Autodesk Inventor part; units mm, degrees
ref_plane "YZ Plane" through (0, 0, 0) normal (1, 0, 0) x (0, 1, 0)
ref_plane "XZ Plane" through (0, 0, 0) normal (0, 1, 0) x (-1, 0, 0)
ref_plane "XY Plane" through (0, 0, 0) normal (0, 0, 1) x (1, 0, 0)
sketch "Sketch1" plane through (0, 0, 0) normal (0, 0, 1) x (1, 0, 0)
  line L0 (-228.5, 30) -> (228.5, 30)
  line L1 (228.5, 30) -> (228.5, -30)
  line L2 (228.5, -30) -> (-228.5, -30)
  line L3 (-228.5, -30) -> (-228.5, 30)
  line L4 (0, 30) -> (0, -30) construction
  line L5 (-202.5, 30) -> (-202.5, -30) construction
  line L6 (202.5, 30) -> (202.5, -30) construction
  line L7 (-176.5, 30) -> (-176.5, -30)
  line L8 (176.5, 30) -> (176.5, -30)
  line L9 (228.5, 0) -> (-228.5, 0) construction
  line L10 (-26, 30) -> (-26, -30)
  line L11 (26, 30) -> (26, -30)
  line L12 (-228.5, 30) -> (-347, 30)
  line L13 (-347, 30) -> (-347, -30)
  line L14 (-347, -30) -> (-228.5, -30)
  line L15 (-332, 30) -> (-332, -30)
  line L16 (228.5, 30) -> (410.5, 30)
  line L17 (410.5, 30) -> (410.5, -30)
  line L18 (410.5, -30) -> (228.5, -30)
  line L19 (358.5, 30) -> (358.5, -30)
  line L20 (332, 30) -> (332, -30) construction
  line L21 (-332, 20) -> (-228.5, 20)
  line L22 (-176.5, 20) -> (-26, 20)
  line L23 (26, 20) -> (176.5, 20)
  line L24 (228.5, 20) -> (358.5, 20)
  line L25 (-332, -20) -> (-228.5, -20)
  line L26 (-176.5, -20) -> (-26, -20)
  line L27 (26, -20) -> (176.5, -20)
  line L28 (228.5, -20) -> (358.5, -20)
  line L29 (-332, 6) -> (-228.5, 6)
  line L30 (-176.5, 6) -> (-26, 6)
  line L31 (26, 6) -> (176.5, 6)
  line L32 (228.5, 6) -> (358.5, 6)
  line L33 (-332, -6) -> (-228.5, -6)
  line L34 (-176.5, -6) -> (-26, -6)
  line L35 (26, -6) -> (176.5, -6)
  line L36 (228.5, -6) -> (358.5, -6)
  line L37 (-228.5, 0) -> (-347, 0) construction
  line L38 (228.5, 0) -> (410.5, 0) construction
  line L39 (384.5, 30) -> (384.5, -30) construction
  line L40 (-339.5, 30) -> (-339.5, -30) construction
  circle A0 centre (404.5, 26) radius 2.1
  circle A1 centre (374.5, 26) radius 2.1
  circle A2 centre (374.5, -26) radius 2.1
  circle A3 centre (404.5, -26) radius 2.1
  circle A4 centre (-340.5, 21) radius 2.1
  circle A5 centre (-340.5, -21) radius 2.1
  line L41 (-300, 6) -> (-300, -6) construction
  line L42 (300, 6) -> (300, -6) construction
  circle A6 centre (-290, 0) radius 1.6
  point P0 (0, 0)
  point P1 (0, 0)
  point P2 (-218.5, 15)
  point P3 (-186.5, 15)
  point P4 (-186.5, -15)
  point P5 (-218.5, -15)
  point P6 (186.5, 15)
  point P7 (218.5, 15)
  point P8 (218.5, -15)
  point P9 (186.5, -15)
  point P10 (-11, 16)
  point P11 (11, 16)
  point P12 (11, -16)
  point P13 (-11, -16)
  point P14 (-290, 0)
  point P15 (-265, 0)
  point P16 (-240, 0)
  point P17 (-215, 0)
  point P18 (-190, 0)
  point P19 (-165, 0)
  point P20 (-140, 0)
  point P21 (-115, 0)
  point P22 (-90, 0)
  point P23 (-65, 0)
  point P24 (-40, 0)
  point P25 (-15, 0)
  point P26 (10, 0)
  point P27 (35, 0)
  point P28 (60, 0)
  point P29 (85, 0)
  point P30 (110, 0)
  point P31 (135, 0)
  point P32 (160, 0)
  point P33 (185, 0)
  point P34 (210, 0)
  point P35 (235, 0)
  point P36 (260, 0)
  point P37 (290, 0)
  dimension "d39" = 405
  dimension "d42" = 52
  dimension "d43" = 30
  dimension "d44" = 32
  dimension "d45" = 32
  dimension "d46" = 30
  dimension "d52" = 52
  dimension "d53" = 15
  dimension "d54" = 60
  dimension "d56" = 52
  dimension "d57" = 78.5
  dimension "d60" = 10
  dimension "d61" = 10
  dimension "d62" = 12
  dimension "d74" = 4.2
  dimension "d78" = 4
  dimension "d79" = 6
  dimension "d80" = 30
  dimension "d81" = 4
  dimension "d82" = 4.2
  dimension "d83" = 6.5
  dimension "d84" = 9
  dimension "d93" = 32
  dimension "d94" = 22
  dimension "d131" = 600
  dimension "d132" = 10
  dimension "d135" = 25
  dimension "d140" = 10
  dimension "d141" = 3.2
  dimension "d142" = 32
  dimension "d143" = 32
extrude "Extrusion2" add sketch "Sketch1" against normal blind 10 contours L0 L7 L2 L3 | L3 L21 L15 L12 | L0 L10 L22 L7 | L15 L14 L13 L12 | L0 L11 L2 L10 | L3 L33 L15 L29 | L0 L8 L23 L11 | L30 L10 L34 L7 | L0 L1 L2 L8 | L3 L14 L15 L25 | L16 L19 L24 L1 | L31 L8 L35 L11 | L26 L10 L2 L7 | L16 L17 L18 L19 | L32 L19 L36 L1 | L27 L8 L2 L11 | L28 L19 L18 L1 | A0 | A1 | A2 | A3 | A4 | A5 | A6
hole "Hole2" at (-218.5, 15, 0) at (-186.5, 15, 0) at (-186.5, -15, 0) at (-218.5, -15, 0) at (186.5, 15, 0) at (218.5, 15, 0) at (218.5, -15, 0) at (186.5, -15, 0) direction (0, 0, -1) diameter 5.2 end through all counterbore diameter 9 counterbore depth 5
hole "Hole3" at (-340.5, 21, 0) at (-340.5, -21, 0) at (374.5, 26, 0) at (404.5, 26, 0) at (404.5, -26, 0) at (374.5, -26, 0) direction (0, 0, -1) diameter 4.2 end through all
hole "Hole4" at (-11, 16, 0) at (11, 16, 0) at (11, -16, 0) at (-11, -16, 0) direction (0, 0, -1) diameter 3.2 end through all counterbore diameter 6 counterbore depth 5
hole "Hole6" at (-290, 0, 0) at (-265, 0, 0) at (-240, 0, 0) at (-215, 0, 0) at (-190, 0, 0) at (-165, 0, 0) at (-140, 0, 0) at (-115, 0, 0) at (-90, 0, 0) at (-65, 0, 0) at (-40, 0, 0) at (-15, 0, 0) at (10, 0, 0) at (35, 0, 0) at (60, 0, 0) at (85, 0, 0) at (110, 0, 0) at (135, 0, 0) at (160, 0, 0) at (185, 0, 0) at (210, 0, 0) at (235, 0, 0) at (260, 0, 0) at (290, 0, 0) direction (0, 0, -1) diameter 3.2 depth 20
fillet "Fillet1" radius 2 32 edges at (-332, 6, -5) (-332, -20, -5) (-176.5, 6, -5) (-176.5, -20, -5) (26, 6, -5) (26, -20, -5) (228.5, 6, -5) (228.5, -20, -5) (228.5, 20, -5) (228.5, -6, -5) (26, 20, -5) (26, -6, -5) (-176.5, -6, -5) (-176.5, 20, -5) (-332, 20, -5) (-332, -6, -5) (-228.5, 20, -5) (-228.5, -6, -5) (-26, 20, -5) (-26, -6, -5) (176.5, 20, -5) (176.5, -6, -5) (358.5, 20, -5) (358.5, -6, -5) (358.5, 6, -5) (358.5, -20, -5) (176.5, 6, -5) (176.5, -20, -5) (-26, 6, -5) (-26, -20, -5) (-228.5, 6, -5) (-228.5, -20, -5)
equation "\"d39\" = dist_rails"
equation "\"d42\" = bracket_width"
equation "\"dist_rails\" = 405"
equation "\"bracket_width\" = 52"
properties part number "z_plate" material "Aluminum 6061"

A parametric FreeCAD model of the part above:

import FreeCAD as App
import Part
import Sketcher

V = App.Vector


def edges_at(feature, points):
    """Names of the edges that pass closest to the given points."""
    edges = feature.Shape.Edges
    near = lambda p: min(range(len(edges)), key=lambda i: edges[i].distToShape(Part.Vertex(*p))[0])
    return sorted({f"Edge{near(p) + 1}" for p in points})

doc = App.newDocument("Part")
body = doc.addObject("PartDesign::Body", "Body")

# Sketch on XY plane
sketch1 = body.newObject("Sketcher::SketchObject", "Sketch")
sketch1.AttachmentSupport = (doc.getObject("XY_Plane"), [""])
sketch1.MapMode = "FlatFace"
sketch1.addGeometry([
    Part.LineSegment(V(-347, 30, 0), V(-347, -30, 0)),  # 0
    Part.LineSegment(V(-347, -30, 0), V(410.5, -30, 0)),  # 1
    Part.LineSegment(V(410.5, -30, 0), V(410.5, 30, 0)),  # 2
    Part.LineSegment(V(410.5, 30, 0), V(-347, 30, 0)),  # 3
    Part.LineSegment(V(-176.5, 6, 0), V(-176.5, 20, 0)),  # 4
    Part.LineSegment(V(-176.5, 20, 0), V(-26, 20, 0)),  # 5
    Part.LineSegment(V(-26, 20, 0), V(-26, 6, 0)),  # 6
    Part.LineSegment(V(-26, 6, 0), V(-176.5, 6, 0)),  # 7
    Part.LineSegment(V(-176.5, -20, 0), V(-176.5, -6, 0)),  # 8
    Part.LineSegment(V(-176.5, -6, 0), V(-26, -6, 0)),  # 9
    Part.LineSegment(V(-26, -6, 0), V(-26, -20, 0)),  # 10
    Part.LineSegment(V(-26, -20, 0), V(-176.5, -20, 0)),  # 11
    Part.LineSegment(V(-228.5, -6, 0), V(-228.5, -20, 0)),  # 12
    Part.LineSegment(V(-228.5, -20, 0), V(-332, -20, 0)),  # 13
    Part.LineSegment(V(-332, -20, 0), V(-332, -6, 0)),  # 14
    Part.LineSegment(V(-332, -6, 0), V(-228.5, -6, 0)),  # 15
    Part.LineSegment(V(-228.5, 20, 0), V(-228.5, 6, 0)),  # 16
    Part.LineSegment(V(-228.5, 6, 0), V(-332, 6, 0)),  # 17
    Part.LineSegment(V(-332, 6, 0), V(-332, 20, 0)),  # 18
    Part.LineSegment(V(-332, 20, 0), V(-228.5, 20, 0)),  # 19
    Part.LineSegment(V(26, 6, 0), V(26, 20, 0)),  # 20
    Part.LineSegment(V(26, 20, 0), V(176.5, 20, 0)),  # 21
    Part.LineSegment(V(176.5, 20, 0), V(176.5, 6, 0)),  # 22
    Part.LineSegment(V(176.5, 6, 0), V(26, 6, 0)),  # 23
    Part.LineSegment(V(26, -20, 0), V(26, -6, 0)),  # 24
    Part.LineSegment(V(26, -6, 0), V(176.5, -6, 0)),  # 25
    Part.LineSegment(V(176.5, -6, 0), V(176.5, -20, 0)),  # 26
    Part.LineSegment(V(176.5, -20, 0), V(26, -20, 0)),  # 27
    Part.LineSegment(V(228.5, 6, 0), V(228.5, 20, 0)),  # 28
    Part.LineSegment(V(228.5, 20, 0), V(358.5, 20, 0)),  # 29
    Part.LineSegment(V(358.5, 20, 0), V(358.5, 6, 0)),  # 30
    Part.LineSegment(V(358.5, 6, 0), V(228.5, 6, 0)),  # 31
    Part.LineSegment(V(228.5, -20, 0), V(228.5, -6, 0)),  # 32
    Part.LineSegment(V(228.5, -6, 0), V(358.5, -6, 0)),  # 33
    Part.LineSegment(V(358.5, -6, 0), V(358.5, -20, 0)),  # 34
    Part.LineSegment(V(358.5, -20, 0), V(228.5, -20, 0)),  # 35
], False)
sketch1.addConstraint([
    Sketcher.Constraint("Coincident", 0, 2, 1, 1),
    Sketcher.Constraint("Coincident", 1, 2, 2, 1),
    Sketcher.Constraint("Coincident", 2, 2, 3, 1),
    Sketcher.Constraint("Coincident", 3, 2, 0, 1),
    Sketcher.Constraint("Coincident", 4, 2, 5, 1),
    Sketcher.Constraint("Coincident", 5, 2, 6, 1),
    Sketcher.Constraint("Coincident", 6, 2, 7, 1),
    Sketcher.Constraint("Coincident", 7, 2, 4, 1),
    Sketcher.Constraint("Coincident", 8, 2, 9, 1),
    Sketcher.Constraint("Coincident", 9, 2, 10, 1),
    Sketcher.Constraint("Coincident", 10, 2, 11, 1),
    Sketcher.Constraint("Coincident", 11, 2, 8, 1),
    Sketcher.Constraint("Coincident", 12, 2, 13, 1),
    Sketcher.Constraint("Coincident", 13, 2, 14, 1),
    Sketcher.Constraint("Coincident", 14, 2, 15, 1),
    Sketcher.Constraint("Coincident", 15, 2, 12, 1),
    Sketcher.Constraint("Coincident", 16, 2, 17, 1),
    Sketcher.Constraint("Coincident", 17, 2, 18, 1),
    Sketcher.Constraint("Coincident", 18, 2, 19, 1),
    Sketcher.Constraint("Coincident", 19, 2, 16, 1),
    Sketcher.Constraint("Coincident", 20, 2, 21, 1),
    Sketcher.Constraint("Coincident", 21, 2, 22, 1),
    Sketcher.Constraint("Coincident", 22, 2, 23, 1),
    Sketcher.Constraint("Coincident", 23, 2, 20, 1),
    Sketcher.Constraint("Coincident", 24, 2, 25, 1),
    Sketcher.Constraint("Coincident", 25, 2, 26, 1),
    Sketcher.Constraint("Coincident", 26, 2, 27, 1),
    Sketcher.Constraint("Coincident", 27, 2, 24, 1),
    Sketcher.Constraint("Coincident", 28, 2, 29, 1),
    Sketcher.Constraint("Coincident", 29, 2, 30, 1),
    Sketcher.Constraint("Coincident", 30, 2, 31, 1),
    Sketcher.Constraint("Coincident", 31, 2, 28, 1),
    Sketcher.Constraint("Coincident", 32, 2, 33, 1),
    Sketcher.Constraint("Coincident", 33, 2, 34, 1),
    Sketcher.Constraint("Coincident", 34, 2, 35, 1),
    Sketcher.Constraint("Coincident", 35, 2, 32, 1),
    Sketcher.Constraint("Vertical", 0),
    Sketcher.Constraint("Horizontal", 1),
    Sketcher.Constraint("Vertical", 2),
    Sketcher.Constraint("Horizontal", 3),
    Sketcher.Constraint("Vertical", 4),
    Sketcher.Constraint("Horizontal", 5),
    Sketcher.Constraint("Vertical", 6),
    Sketcher.Constraint("Horizontal", 7),
    Sketcher.Constraint("Vertical", 8),
    Sketcher.Constraint("Horizontal", 9),
    Sketcher.Constraint("Vertical", 10),
    Sketcher.Constraint("Horizontal", 11),
    Sketcher.Constraint("Vertical", 12),
    Sketcher.Constraint("Horizontal", 13),
    Sketcher.Constraint("Vertical", 14),
    Sketcher.Constraint("Horizontal", 15),
    Sketcher.Constraint("Vertical", 16),
    Sketcher.Constraint("Horizontal", 17),
    Sketcher.Constraint("Vertical", 18),
    Sketcher.Constraint("Horizontal", 19),
    Sketcher.Constraint("Vertical", 20),
    Sketcher.Constraint("Horizontal", 21),
    Sketcher.Constraint("Vertical", 22),
    Sketcher.Constraint("Horizontal", 23),
    Sketcher.Constraint("Vertical", 24),
    Sketcher.Constraint("Horizontal", 25),
    Sketcher.Constraint("Vertical", 26),
    Sketcher.Constraint("Horizontal", 27),
    Sketcher.Constraint("Vertical", 28),
    Sketcher.Constraint("Horizontal", 29),
    Sketcher.Constraint("Vertical", 30),
    Sketcher.Constraint("Horizontal", 31),
    Sketcher.Constraint("Vertical", 32),
    Sketcher.Constraint("Horizontal", 33),
    Sketcher.Constraint("Vertical", 34),
    Sketcher.Constraint("Horizontal", 35),
    Sketcher.Constraint("Symmetric", 10, 2, 20, 2, -1, 1),
    Sketcher.Constraint("Symmetric", 8, 2, 22, 2, -1, 1),
    Sketcher.Constraint("Symmetric", 6, 2, 24, 2, -1, 1),
    Sketcher.Constraint("Symmetric", 4, 2, 26, 2, -1, 1),
    Sketcher.Constraint("Symmetric", 12, 2, 28, 2, -1, 1),
    Sketcher.Constraint("Symmetric", 16, 2, 32, 2, -1, 1),
    Sketcher.Constraint("Symmetric", 5, 2, 20, 2, -2),
    Sketcher.Constraint("Symmetric", 7, 2, 22, 2, -2),
    Sketcher.Constraint("Symmetric", 19, 2, 28, 2, -2),
    Sketcher.Constraint("Symmetric", 14, 2, 17, 2, -1),
    Sketcher.Constraint("Symmetric", 30, 2, 33, 2, -1),
    Sketcher.Constraint("Horizontal", 11, 2, 12, 2),
    Sketcher.Constraint("Horizontal", 9, 2, 14, 2),
    Sketcher.Constraint("Horizontal", 27, 2, 34, 2),
    Sketcher.Constraint("DistanceY", 0, 2, 0, 1, 60.0),
    Sketcher.Constraint("DistanceY", 0, 2, -1, 1, 30.0),
    Sketcher.Constraint("DistanceY", -1, 1, 6, 2, 6.0),
    Sketcher.Constraint("DistanceY", 4, 2, 3, 2, 10.0),
    Sketcher.Constraint("DistanceX", 12, 2, 11, 2, 52.0),
    Sketcher.Constraint("DistanceX", 0, 2, 13, 2, 15.0),
    Sketcher.Constraint("DistanceX", 5, 2, 20, 2, 52.0),
    Sketcher.Constraint("DistanceX", 29, 2, 2, 2, 52.0),
    Sketcher.Constraint("DistanceX", 29, 1, 29, 2, 130.0),
    Sketcher.Constraint("DistanceX", 1, 1, 1, 2, 757.5),
    Sketcher.Constraint("DistanceX", 5, 1, 5, 2, 150.5),
])
pad1 = body.newObject("PartDesign::Pad", "Pad")
pad1.Profile = sketch1
pad1.Length = 10
pad1.Reversed = True

# Sketch on XY plane
sketch2 = body.newObject("Sketcher::SketchObject", "Sketch001")
sketch2.AttachmentSupport = (doc.getObject("XY_Plane"), [""])
sketch2.MapMode = "FlatFace"
sketch2.addGeometry([
    Part.Circle(V(-218.5, 15, 0), V(0, 0, 1), 2.6),  # 0
    Part.Circle(V(-186.5, 15, 0), V(0, 0, 1), 2.6),  # 1
    Part.Circle(V(-186.5, -15, 0), V(0, 0, 1), 2.6),  # 2
    Part.Circle(V(-218.5, -15, 0), V(0, 0, 1), 2.6),  # 3
    Part.Circle(V(186.5, 15, 0), V(0, 0, 1), 2.6),  # 4
    Part.Circle(V(218.5, 15, 0), V(0, 0, 1), 2.6),  # 5
    Part.Circle(V(218.5, -15, 0), V(0, 0, 1), 2.6),  # 6
    Part.Circle(V(186.5, -15, 0), V(0, 0, 1), 2.6),  # 7
], False)
sketch2.addConstraint([
    Sketcher.Constraint("Equal", 0, 1),
    Sketcher.Constraint("Equal", 1, 2),
    Sketcher.Constraint("Equal", 2, 3),
    Sketcher.Constraint("Equal", 3, 4),
    Sketcher.Constraint("Equal", 4, 5),
    Sketcher.Constraint("Equal", 5, 6),
    Sketcher.Constraint("Equal", 6, 7),
    Sketcher.Constraint("Symmetric", 2, 3, 4, 3, -1, 1),
    Sketcher.Constraint("Symmetric", 3, 3, 5, 3, -1, 1),
    Sketcher.Constraint("Symmetric", 0, 3, 6, 3, -1, 1),
    Sketcher.Constraint("Symmetric", 1, 3, 7, 3, -1, 1),
    Sketcher.Constraint("Symmetric", 1, 3, 4, 3, -2),
    Sketcher.Constraint("Symmetric", 0, 3, 5, 3, -2),
    Sketcher.Constraint("Horizontal", 0, 3, 1, 3),
    Sketcher.Constraint("Diameter", 0, 5.2),
    Sketcher.Constraint("DistanceY", -1, 1, 0, 3, 15.0),
    Sketcher.Constraint("DistanceX", 0, 3, 1, 3, 32.0),
    Sketcher.Constraint("DistanceX", 1, 3, 4, 3, 373.0),
])
doc.recompute()
hole = body.newObject("PartDesign::Hole", "Hole")
hole.Profile = sketch2
hole.ThreadType = "None"
hole.Diameter = 5.2
hole.DepthType = "ThroughAll"
hole.HoleCutType = "Counterbore"
hole.HoleCutDiameter = 9
hole.HoleCutDepth = 5

# Sketch on XY plane
sketch3 = body.newObject("Sketcher::SketchObject", "Sketch002")
sketch3.AttachmentSupport = (doc.getObject("XY_Plane"), [""])
sketch3.MapMode = "FlatFace"
sketch3.addGeometry([
    Part.Circle(V(-340.5, 21, 0), V(0, 0, 1), 2.1),  # 0
    Part.Circle(V(-340.5, -21, 0), V(0, 0, 1), 2.1),  # 1
    Part.Circle(V(374.5, 26, 0), V(0, 0, 1), 2.1),  # 2
    Part.Circle(V(404.5, 26, 0), V(0, 0, 1), 2.1),  # 3
    Part.Circle(V(404.5, -26, 0), V(0, 0, 1), 2.1),  # 4
    Part.Circle(V(374.5, -26, 0), V(0, 0, 1), 2.1),  # 5
], False)
sketch3.addConstraint([
    Sketcher.Constraint("Equal", 0, 1),
    Sketcher.Constraint("Equal", 1, 2),
    Sketcher.Constraint("Equal", 2, 3),
    Sketcher.Constraint("Equal", 3, 4),
    Sketcher.Constraint("Equal", 4, 5),
    Sketcher.Constraint("Symmetric", 0, 3, 1, 3, -1),
    Sketcher.Constraint("Symmetric", 3, 3, 4, 3, -1),
    Sketcher.Constraint("Symmetric", 2, 3, 5, 3, -1),
    Sketcher.Constraint("Horizontal", 2, 3, 3, 3),
    Sketcher.Constraint("Diameter", 0, 4.2),
    Sketcher.Constraint("DistanceY", -1, 1, 0, 3, 21.0),
    Sketcher.Constraint("DistanceY", -1, 1, 2, 3, 26.0),
    Sketcher.Constraint("DistanceX", 0, 3, 2, 3, 715.0),
    Sketcher.Constraint("DistanceX", 2, 3, 3, 3, 30.0),
    Sketcher.Constraint("DistanceX", 0, 3, -1, 1, 340.5),
])
doc.recompute()
hole2 = body.newObject("PartDesign::Hole", "Hole001")
hole2.Profile = sketch3
hole2.ThreadType = "None"
hole2.Diameter = 4.2
hole2.DepthType = "ThroughAll"

# Sketch on XY plane
sketch4 = body.newObject("Sketcher::SketchObject", "Sketch003")
sketch4.AttachmentSupport = (doc.getObject("XY_Plane"), [""])
sketch4.MapMode = "FlatFace"
sketch4.addGeometry([
    Part.Circle(V(-11, 16, 0), V(0, 0, 1), 1.6),
    Part.Circle(V(11, 16, 0), V(0, 0, 1), 1.6),
    Part.Circle(V(11, -16, 0), V(0, 0, 1), 1.6),
    Part.Circle(V(-11, -16, 0), V(0, 0, 1), 1.6),
], False)
sketch4.addConstraint([
    Sketcher.Constraint("Equal", 0, 1),
    Sketcher.Constraint("Equal", 1, 2),
    Sketcher.Constraint("Equal", 2, 3),
    Sketcher.Constraint("Symmetric", 0, 3, 2, 3, -1, 1),
    Sketcher.Constraint("Symmetric", 1, 3, 3, 3, -1, 1),
    Sketcher.Constraint("Symmetric", 0, 3, 1, 3, -2),
    Sketcher.Constraint("Diameter", 0, 3.2),
    Sketcher.Constraint("DistanceX", 0, 3, -1, 1, 11.0),
    Sketcher.Constraint("DistanceY", -1, 1, 0, 3, 16.0),
])
doc.recompute()
hole3 = body.newObject("PartDesign::Hole", "Hole002")
hole3.Profile = sketch4
hole3.ThreadType = "None"
hole3.Diameter = 3.2
hole3.DepthType = "ThroughAll"
hole3.HoleCutType = "Counterbore"
hole3.HoleCutDiameter = 6
hole3.HoleCutDepth = 5

# Sketch on XY plane
sketch5 = body.newObject("Sketcher::SketchObject", "Sketch004")
sketch5.AttachmentSupport = (doc.getObject("XY_Plane"), [""])
sketch5.MapMode = "FlatFace"
sketch5.addGeometry([
    Part.Circle(V(-290, 0, 0), V(0, 0, 1), 1.6),  # 0
    Part.Circle(V(-265, 0, 0), V(0, 0, 1), 1.6),  # 1
    Part.Circle(V(-240, 0, 0), V(0, 0, 1), 1.6),  # 2
    Part.Circle(V(-215, 0, 0), V(0, 0, 1), 1.6),  # 3
    Part.Circle(V(-190, 0, 0), V(0, 0, 1), 1.6),  # 4
    Part.Circle(V(-165, 0, 0), V(0, 0, 1), 1.6),  # 5
    Part.Circle(V(-140, 0, 0), V(0, 0, 1), 1.6),  # 6
    Part.Circle(V(-115, 0, 0), V(0, 0, 1), 1.6),  # 7
    Part.Circle(V(-90, 0, 0), V(0, 0, 1), 1.6),  # 8
    Part.Circle(V(-65, 0, 0), V(0, 0, 1), 1.6),  # 9
    Part.Circle(V(-40, 0, 0), V(0, 0, 1), 1.6),  # 10
    Part.Circle(V(-15, 0, 0), V(0, 0, 1), 1.6),  # 11
    Part.Circle(V(10, 0, 0), V(0, 0, 1), 1.6),  # 12
    Part.Circle(V(35, 0, 0), V(0, 0, 1), 1.6),  # 13
    Part.Circle(V(60, 0, 0), V(0, 0, 1), 1.6),  # 14
    Part.Circle(V(85, 0, 0), V(0, 0, 1), 1.6),  # 15
    Part.Circle(V(110, 0, 0), V(0, 0, 1), 1.6),  # 16
    Part.Circle(V(135, 0, 0), V(0, 0, 1), 1.6),  # 17
    Part.Circle(V(160, 0, 0), V(0, 0, 1), 1.6),  # 18
    Part.Circle(V(185, 0, 0), V(0, 0, 1), 1.6),  # 19
    Part.Circle(V(210, 0, 0), V(0, 0, 1), 1.6),  # 20
    Part.Circle(V(235, 0, 0), V(0, 0, 1), 1.6),  # 21
    Part.Circle(V(260, 0, 0), V(0, 0, 1), 1.6),  # 22
    Part.Circle(V(290, 0, 0), V(0, 0, 1), 1.6),  # 23
], False)
sketch5.addConstraint([
    Sketcher.Constraint("Equal", 0, 1),
    Sketcher.Constraint("Equal", 1, 2),
    Sketcher.Constraint("Equal", 2, 3),
    Sketcher.Constraint("Equal", 3, 4),
    Sketcher.Constraint("Equal", 4, 5),
    Sketcher.Constraint("Equal", 5, 6),
    Sketcher.Constraint("Equal", 6, 7),
    Sketcher.Constraint("Equal", 7, 8),
    Sketcher.Constraint("Equal", 8, 9),
    Sketcher.Constraint("Equal", 9, 10),
    Sketcher.Constraint("Equal", 10, 11),
    Sketcher.Constraint("Equal", 11, 12),
    Sketcher.Constraint("Equal", 12, 13),
    Sketcher.Constraint("Equal", 13, 14),
    Sketcher.Constraint("Equal", 14, 15),
    Sketcher.Constraint("Equal", 15, 16),
    Sketcher.Constraint("Equal", 16, 17),
    Sketcher.Constraint("Equal", 17, 18),
    Sketcher.Constraint("Equal", 18, 19),
    Sketcher.Constraint("Equal", 19, 20),
    Sketcher.Constraint("Equal", 20, 21),
    Sketcher.Constraint("Equal", 21, 22),
    Sketcher.Constraint("Equal", 22, 23),
    Sketcher.Constraint("Symmetric", 0, 3, 23, 3, -1, 1),
    Sketcher.Constraint("PointOnObject", 0, 3, -1),
    Sketcher.Constraint("PointOnObject", 1, 3, -1),
    Sketcher.Constraint("PointOnObject", 2, 3, -1),
    Sketcher.Constraint("PointOnObject", 3, 3, -1),
    Sketcher.Constraint("PointOnObject", 4, 3, -1),
    Sketcher.Constraint("PointOnObject", 5, 3, -1),
    Sketcher.Constraint("PointOnObject", 6, 3, -1),
    Sketcher.Constraint("PointOnObject", 7, 3, -1),
    Sketcher.Constraint("PointOnObject", 8, 3, -1),
    Sketcher.Constraint("PointOnObject", 9, 3, -1),
    Sketcher.Constraint("PointOnObject", 10, 3, -1),
    Sketcher.Constraint("PointOnObject", 11, 3, -1),
    Sketcher.Constraint("PointOnObject", 12, 3, -1),
    Sketcher.Constraint("PointOnObject", 13, 3, -1),
    Sketcher.Constraint("PointOnObject", 14, 3, -1),
    Sketcher.Constraint("PointOnObject", 15, 3, -1),
    Sketcher.Constraint("PointOnObject", 16, 3, -1),
    Sketcher.Constraint("PointOnObject", 17, 3, -1),
    Sketcher.Constraint("PointOnObject", 18, 3, -1),
    Sketcher.Constraint("PointOnObject", 19, 3, -1),
    Sketcher.Constraint("PointOnObject", 20, 3, -1),
    Sketcher.Constraint("PointOnObject", 21, 3, -1),
    Sketcher.Constraint("PointOnObject", 22, 3, -1),
    Sketcher.Constraint("Diameter", 0, 3.2),
    Sketcher.Constraint("DistanceX", 0, 3, -1, 1, 290.0),
    Sketcher.Constraint("DistanceX", 1, 3, -1, 1, 265.0),
    Sketcher.Constraint("DistanceX", 2, 3, -1, 1, 240.0),
    Sketcher.Constraint("DistanceX", 3, 3, -1, 1, 215.0),
    Sketcher.Constraint("DistanceX", 4, 3, -1, 1, 190.0),
    Sketcher.Constraint("DistanceX", 5, 3, -1, 1, 165.0),
    Sketcher.Constraint("DistanceX", 6, 3, -1, 1, 140.0),
    Sketcher.Constraint("DistanceX", 7, 3, -1, 1, 115.0),
    Sketcher.Constraint("DistanceX", 8, 3, -1, 1, 90.0),
    Sketcher.Constraint("DistanceX", 9, 3, -1, 1, 65.0),
    Sketcher.Constraint("DistanceX", 10, 3, -1, 1, 40.0),
    Sketcher.Constraint("DistanceX", 11, 3, -1, 1, 15.0),
    Sketcher.Constraint("DistanceX", -1, 1, 12, 3, 10.0),
    Sketcher.Constraint("DistanceX", -1, 1, 13, 3, 35.0),
    Sketcher.Constraint("DistanceX", -1, 1, 14, 3, 60.0),
    Sketcher.Constraint("DistanceX", -1, 1, 15, 3, 85.0),
    Sketcher.Constraint("DistanceX", -1, 1, 16, 3, 110.0),
    Sketcher.Constraint("DistanceX", -1, 1, 17, 3, 135.0),
    Sketcher.Constraint("DistanceX", -1, 1, 18, 3, 160.0),
    Sketcher.Constraint("DistanceX", -1, 1, 19, 3, 185.0),
    Sketcher.Constraint("DistanceX", -1, 1, 20, 3, 210.0),
    Sketcher.Constraint("DistanceX", -1, 1, 21, 3, 235.0),
    Sketcher.Constraint("DistanceX", -1, 1, 22, 3, 260.0),
])
doc.recompute()
hole4 = body.newObject("PartDesign::Hole", "Hole003")
hole4.Profile = sketch5
hole4.ThreadType = "None"
hole4.Diameter = 3.2
hole4.DepthType = "Dimension"
hole4.Depth = 20
hole4.DrillPoint = "Flat"
doc.recompute()

fillet = body.newObject("PartDesign::Fillet", "Fillet")
fillet.Base = (hole4, edges_at(hole4, [
    (-332, 6, -5),
    (-332, -20, -5),
    (-176.5, 6, -5),
    (-176.5, -20, -5),
    (26, 6, -5),
    (26, -20, -5),
    (228.5, 6, -5),
    (228.5, -20, -5),
    (228.5, 20, -5),
    (228.5, -6, -5),
    (26, 20, -5),
    (26, -6, -5),
    (-176.5, -6, -5),
    (-176.5, 20, -5),
    (-332, 20, -5),
    (-332, -6, -5),
    (-228.5, 20, -5),
    (-228.5, -6, -5),
    (-26, 20, -5),
    (-26, -6, -5),
    (176.5, 20, -5),
    (176.5, -6, -5),
    (358.5, 20, -5),
    (358.5, -6, -5),
    (358.5, 6, -5),
    (358.5, -20, -5),
    (176.5, 6, -5),
    (176.5, -20, -5),
    (-26, 6, -5),
    (-26, -20, -5),
    (-228.5, 6, -5),
    (-228.5, -20, -5),
]))
fillet.Radius = 2

doc.recompute()
